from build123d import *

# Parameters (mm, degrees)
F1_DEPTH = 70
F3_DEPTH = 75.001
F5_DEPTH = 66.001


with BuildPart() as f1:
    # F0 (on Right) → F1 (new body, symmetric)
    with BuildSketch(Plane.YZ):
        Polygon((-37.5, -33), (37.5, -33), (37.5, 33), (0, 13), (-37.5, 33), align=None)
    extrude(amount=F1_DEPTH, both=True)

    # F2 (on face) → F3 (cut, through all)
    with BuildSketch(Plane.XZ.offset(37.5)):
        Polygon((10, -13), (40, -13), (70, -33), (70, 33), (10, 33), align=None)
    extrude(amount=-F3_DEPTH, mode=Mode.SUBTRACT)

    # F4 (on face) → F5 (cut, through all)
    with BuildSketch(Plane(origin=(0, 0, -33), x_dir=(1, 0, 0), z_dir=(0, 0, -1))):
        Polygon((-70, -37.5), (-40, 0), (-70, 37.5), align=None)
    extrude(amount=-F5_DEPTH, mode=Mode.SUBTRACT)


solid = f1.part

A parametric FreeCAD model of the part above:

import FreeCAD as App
import Part
import Sketcher
Q = App.Units.Quantity


def add_polygon(sketch, points):
    """Adds a closed chain of lines whose ends are joined by coincident constraints."""
    first, n = sketch.GeometryCount, len(points)
    for a, b in zip(points, points[1:] + points[:1]):
        sketch.addGeometry(Part.LineSegment(App.Vector(*a, 0), App.Vector(*b, 0)), False)
    for i in range(n):
        sketch.addConstraint(Sketcher.Constraint("Coincident", first + i, 2, first + (i + 1) % n, 1))

doc = App.newDocument("Part")
body = doc.addObject("PartDesign::Body", "Body")

# Sketch on YZ plane
sketch1 = doc.addObject("Sketcher::SketchObject", "Sketch")
body.addObject(sketch1)
sketch1.AttachmentSupport = (doc.YZ_Plane, [""])
sketch1.MapMode = "FlatFace"
add_polygon(sketch1, [(-37.5, -33), (37.5, -33), (37.5, 33), (0, 13), (-37.5, 33)])  # lines 0-4
sketch1.addConstraint([
    Sketcher.Constraint("Horizontal", 0),
    Sketcher.Constraint("Vertical", 1),
    Sketcher.Constraint("Vertical", 4),
    Sketcher.Constraint("Symmetric", 0, 2, 3, 2, -1, 1),
    Sketcher.Constraint("PointOnObject", 2, 2, -2),
    Sketcher.Constraint("Horizontal", 1, 2, 3, 2),
    Sketcher.Constraint("DistanceX", 0, 1, 0, 2, Q("75 mm")),
    Sketcher.Constraint("DistanceY", 1, 1, 1, 2, Q("66 mm")),
    Sketcher.Constraint("DistanceY", -1, 1, 2, 2, Q("13 mm")),
])
pad1 = doc.addObject("PartDesign::Pad", "Pad")
body.addObject(pad1)
pad1.Profile = sketch1
pad1.Length = 140
pad1.Midplane = True

# Sketch on XZ plane
sketch2 = doc.addObject("Sketcher::SketchObject", "Sketch001")
body.addObject(sketch2)
sketch2.AttachmentSupport = (doc.XZ_Plane, [""])
sketch2.MapMode = "FlatFace"
sketch2.AttachmentOffset = App.Placement(App.Vector(0, 0, 37.5), App.Rotation())
add_polygon(sketch2, [(10, -13), (40, -13), (70, -33), (70, 33), (10, 33)])  # lines 0-4
sketch2.addConstraint([
    Sketcher.Constraint("Horizontal", 0),
    Sketcher.Constraint("Vertical", 2),
    Sketcher.Constraint("Horizontal", 3),
    Sketcher.Constraint("Vertical", 4),
    Sketcher.Constraint("DistanceX", 0, 1, 0, 2, Q("30 mm")),
    Sketcher.Constraint("DistanceX", 3, 2, 3, 1, Q("60 mm")),
    Sketcher.Constraint("DistanceY", 2, 1, 2, 2, Q("66 mm")),
    Sketcher.Constraint("DistanceY", 4, 2, 4, 1, Q("46 mm")),
    Sketcher.Constraint("DistanceX", -1, 1, 0, 2, Q("40 mm")),
    Sketcher.Constraint("DistanceY", 0, 2, -1, 1, Q("13 mm")),
])
pocket1 = doc.addObject("PartDesign::Pocket", "Pocket")
body.addObject(pocket1)
pocket1.Profile = sketch2
pocket1.Type = "ThroughAll"

# Sketch on XY plane
sketch3 = doc.addObject("Sketcher::SketchObject", "Sketch002")
body.addObject(sketch3)
sketch3.AttachmentSupport = (doc.XY_Plane, [""])
sketch3.MapMode = "FlatFace"
sketch3.AttachmentOffset = App.Placement(App.Vector(0, 0, -33), App.Rotation())
add_polygon(sketch3, [(-70, 37.5), (-40, 0), (-70, -37.5)])  # lines 0-2
sketch3.addConstraint([
    Sketcher.Constraint("Vertical", 2),
    Sketcher.Constraint("PointOnObject", 0, 2, -1),
    Sketcher.Constraint("Equal", 0, 1),
    Sketcher.Constraint("DistanceY", 2, 1, 2, 2, Q("75 mm")),
    Sketcher.Constraint("DistanceX", 0, 2, -1, 1, Q("40 mm")),
    Sketcher.Constraint("DistanceX", 1, 2, -1, 1, Q("70 mm")),
])
pocket2 = doc.addObject("PartDesign::Pocket", "Pocket001")
body.addObject(pocket2)
pocket2.Profile = sketch3
pocket2.Type = "ThroughAll"
pocket2.Reversed = True

doc.recompute()
